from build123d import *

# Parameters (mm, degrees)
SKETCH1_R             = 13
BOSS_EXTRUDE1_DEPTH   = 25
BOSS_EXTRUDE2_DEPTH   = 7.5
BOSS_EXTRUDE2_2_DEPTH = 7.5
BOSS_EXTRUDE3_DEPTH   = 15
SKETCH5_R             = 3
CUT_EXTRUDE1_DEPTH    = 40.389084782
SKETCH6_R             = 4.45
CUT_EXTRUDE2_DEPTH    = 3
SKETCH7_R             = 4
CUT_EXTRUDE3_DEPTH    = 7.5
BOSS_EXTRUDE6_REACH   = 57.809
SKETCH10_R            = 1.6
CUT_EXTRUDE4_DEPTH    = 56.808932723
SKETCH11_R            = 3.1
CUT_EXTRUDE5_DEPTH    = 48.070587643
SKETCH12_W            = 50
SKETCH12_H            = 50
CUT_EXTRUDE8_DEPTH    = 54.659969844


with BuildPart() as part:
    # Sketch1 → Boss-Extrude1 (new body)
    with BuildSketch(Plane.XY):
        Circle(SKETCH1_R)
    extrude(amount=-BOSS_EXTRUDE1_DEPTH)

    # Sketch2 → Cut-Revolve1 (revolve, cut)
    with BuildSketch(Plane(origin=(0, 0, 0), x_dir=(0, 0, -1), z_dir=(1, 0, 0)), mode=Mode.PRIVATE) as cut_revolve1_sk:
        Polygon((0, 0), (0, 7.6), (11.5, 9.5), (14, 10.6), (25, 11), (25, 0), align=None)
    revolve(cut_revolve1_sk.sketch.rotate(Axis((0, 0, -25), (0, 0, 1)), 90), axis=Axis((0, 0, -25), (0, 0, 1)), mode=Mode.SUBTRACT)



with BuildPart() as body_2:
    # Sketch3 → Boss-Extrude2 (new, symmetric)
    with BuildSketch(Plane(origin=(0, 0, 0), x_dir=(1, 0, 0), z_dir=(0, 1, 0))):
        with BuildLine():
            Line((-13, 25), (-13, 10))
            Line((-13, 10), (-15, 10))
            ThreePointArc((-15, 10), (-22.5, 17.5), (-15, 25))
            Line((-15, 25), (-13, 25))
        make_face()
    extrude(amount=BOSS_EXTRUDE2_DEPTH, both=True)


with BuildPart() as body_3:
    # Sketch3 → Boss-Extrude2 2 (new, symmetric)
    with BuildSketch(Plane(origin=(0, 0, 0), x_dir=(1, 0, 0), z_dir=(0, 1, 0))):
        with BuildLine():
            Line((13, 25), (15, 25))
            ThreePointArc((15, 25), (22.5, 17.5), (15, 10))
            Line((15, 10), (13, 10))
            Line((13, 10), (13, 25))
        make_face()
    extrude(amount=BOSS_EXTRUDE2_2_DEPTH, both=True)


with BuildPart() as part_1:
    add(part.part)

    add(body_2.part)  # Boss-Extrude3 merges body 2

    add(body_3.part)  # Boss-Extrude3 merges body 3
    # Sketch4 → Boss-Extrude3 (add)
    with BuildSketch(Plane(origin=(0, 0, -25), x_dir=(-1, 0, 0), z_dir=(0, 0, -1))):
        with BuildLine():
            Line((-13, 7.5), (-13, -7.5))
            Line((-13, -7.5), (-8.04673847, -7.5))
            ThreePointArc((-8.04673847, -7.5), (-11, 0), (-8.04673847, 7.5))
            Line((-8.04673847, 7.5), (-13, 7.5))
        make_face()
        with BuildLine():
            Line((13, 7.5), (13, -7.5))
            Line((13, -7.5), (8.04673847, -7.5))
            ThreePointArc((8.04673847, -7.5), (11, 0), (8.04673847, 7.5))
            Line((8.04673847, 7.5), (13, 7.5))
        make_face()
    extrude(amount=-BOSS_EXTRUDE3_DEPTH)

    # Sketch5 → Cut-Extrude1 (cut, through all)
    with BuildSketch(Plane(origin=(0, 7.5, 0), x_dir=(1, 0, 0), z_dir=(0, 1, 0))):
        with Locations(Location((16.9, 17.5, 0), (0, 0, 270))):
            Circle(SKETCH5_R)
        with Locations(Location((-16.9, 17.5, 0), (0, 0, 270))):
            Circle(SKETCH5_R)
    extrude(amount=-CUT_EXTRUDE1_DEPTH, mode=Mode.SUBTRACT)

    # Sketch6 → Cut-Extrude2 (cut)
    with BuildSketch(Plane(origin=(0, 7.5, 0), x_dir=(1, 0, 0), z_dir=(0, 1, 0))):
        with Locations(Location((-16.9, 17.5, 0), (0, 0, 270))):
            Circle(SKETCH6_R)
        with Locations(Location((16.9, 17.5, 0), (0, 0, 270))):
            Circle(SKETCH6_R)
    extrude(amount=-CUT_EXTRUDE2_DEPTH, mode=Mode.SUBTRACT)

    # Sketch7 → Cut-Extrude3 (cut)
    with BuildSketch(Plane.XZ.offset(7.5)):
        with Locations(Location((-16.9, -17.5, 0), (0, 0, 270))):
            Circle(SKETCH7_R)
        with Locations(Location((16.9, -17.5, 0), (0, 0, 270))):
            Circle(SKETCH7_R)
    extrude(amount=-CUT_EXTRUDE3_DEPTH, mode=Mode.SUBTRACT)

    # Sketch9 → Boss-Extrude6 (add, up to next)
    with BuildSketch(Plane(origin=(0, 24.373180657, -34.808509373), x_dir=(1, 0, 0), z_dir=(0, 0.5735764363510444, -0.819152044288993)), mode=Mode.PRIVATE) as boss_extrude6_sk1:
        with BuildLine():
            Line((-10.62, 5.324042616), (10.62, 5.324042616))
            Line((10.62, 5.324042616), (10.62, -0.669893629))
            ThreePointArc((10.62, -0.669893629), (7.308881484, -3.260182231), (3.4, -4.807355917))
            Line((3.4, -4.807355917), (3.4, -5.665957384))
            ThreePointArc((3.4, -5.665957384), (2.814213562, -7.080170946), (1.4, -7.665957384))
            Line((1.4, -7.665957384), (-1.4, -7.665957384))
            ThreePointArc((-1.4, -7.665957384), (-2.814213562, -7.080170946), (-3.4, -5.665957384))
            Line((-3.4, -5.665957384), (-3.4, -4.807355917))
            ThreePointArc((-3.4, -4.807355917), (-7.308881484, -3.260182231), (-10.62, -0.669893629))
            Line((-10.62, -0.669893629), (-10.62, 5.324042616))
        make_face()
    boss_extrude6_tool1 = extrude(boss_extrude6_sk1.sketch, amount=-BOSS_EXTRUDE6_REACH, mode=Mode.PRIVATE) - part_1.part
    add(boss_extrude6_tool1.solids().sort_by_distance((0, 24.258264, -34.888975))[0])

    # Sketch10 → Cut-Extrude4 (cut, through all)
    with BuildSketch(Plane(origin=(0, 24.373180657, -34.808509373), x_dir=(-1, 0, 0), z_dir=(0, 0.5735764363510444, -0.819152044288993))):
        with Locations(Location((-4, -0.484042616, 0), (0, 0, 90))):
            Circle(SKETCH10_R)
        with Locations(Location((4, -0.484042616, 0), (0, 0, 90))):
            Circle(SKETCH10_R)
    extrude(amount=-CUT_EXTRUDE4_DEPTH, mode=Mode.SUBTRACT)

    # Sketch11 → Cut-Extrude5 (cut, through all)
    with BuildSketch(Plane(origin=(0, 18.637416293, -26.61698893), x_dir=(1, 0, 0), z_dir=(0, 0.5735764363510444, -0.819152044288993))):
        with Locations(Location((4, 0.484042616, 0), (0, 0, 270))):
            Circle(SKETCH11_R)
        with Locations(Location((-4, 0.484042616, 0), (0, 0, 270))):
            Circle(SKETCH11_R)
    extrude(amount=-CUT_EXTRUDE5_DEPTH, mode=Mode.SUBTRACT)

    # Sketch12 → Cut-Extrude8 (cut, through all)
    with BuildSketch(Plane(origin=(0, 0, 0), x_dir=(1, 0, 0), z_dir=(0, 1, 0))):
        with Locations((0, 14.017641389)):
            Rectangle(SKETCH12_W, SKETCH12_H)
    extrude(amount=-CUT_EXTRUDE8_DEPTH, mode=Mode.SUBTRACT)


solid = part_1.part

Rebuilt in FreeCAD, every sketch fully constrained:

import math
import FreeCAD as App
import Part
import Sketcher

V = App.Vector

doc = App.newDocument("Part")
body = doc.addObject("PartDesign::Body", "Body")

# Sketch on XY plane
sketch1 = body.newObject("Sketcher::SketchObject", "Sketch")
sketch1.AttachmentSupport = (doc.getObject("XY_Plane"), [""])
sketch1.MapMode = "FlatFace"
sketch1.addGeometry(Part.Circle(V(0, 0, 0), V(0, 0, 1), 13), False)
sketch1.addConstraint([
    Sketcher.Constraint("Coincident", 0, 3, -1, 1),
    Sketcher.Constraint("Diameter", 0, 26.0),
])
pad1 = body.newObject("PartDesign::Pad", "Pad")
pad1.Profile = sketch1
pad1.Length = 25
pad1.Reversed = True

# Sketch on YZ plane
sketch2 = body.newObject("Sketcher::SketchObject", "Sketch001")
sketch2.AttachmentSupport = (doc.getObject("YZ_Plane"), [""])
sketch2.MapMode = "FlatFace"
sketch2.addGeometry([
    Part.LineSegment(V(7.6, 0, 0), V(0, 0, 0)),  # 0
    Part.LineSegment(V(0, 0, 0), V(0, -25, 0)),  # 1
    Part.LineSegment(V(0, -25, 0), V(11, -25, 0)),  # 2
    Part.LineSegment(V(11, -25, 0), V(10.6, -14, 0)),  # 3
    Part.LineSegment(V(10.6, -14, 0), V(9.5, -11.5, 0)),  # 4
    Part.LineSegment(V(9.5, -11.5, 0), V(7.6, 0, 0)),  # 5
], False)
sketch2.addConstraint([
    Sketcher.Constraint("Coincident", 0, 2, 1, 1),
    Sketcher.Constraint("Coincident", 1, 2, 2, 1),
    Sketcher.Constraint("Coincident", 2, 2, 3, 1),
    Sketcher.Constraint("Coincident", 3, 2, 4, 1),
    Sketcher.Constraint("Coincident", 4, 2, 5, 1),
    Sketcher.Constraint("Coincident", 5, 2, 0, 1),
    Sketcher.Constraint("Horizontal", 0),
    Sketcher.Constraint("Vertical", 1),
    Sketcher.Constraint("Horizontal", 2),
    Sketcher.Constraint("Coincident", 0, 2, -1, 1),
    Sketcher.Constraint("DistanceX", 2, 1, 2, 2, 11.0),
    Sketcher.Constraint("DistanceY", 1, 2, 1, 1, 25.0),
    Sketcher.Constraint("DistanceX", 0, 2, 0, 1, 7.6),
    Sketcher.Constraint("DistanceY", 3, 2, -1, 1, 14.0),
    Sketcher.Constraint("DistanceX", 5, 2, 3, 2, 3.0),
    Sketcher.Constraint("DistanceX", -1, 1, 4, 2, 9.5),
    Sketcher.Constraint("DistanceY", 4, 2, -1, 1, 11.5),
])
groove = body.newObject("PartDesign::Groove", "Groove")
groove.Profile = sketch2
groove.ReferenceAxis = (sketch2, ["V_Axis"])
groove.Angle = 360
body2 = doc.addObject("PartDesign::Body", "Body001")

# Sketch on XZ plane
sketch3 = body2.newObject("Sketcher::SketchObject", "Sketch002")
sketch3.AttachmentSupport = (doc.getObject("XZ_Plane001"), [""])
sketch3.MapMode = "FlatFace"
sketch3.addGeometry([
    Part.LineSegment(V(-13, -10, 0), V(-13, -25, 0)),
    Part.LineSegment(V(-13, -25, 0), V(-15, -25, 0)),
    Part.ArcOfCircle(Part.Circle(V(-15, -17.5, 0), V(0, 0, 1), 7.5), math.radians(90), math.radians(270)),
    Part.LineSegment(V(-15, -10, 0), V(-13, -10, 0)),
], False)
sketch3.addConstraint([
    Sketcher.Constraint("Coincident", 0, 2, 1, 1),
    Sketcher.Constraint("Tangent", 1, 2, 2, 2),
    Sketcher.Constraint("Tangent", 2, 1, 3, 1),
    Sketcher.Constraint("Coincident", 3, 2, 0, 1),
    Sketcher.Constraint("Vertical", 0),
    Sketcher.Constraint("Horizontal", 1),
    Sketcher.Constraint("Horizontal", 3),
    Sketcher.Constraint("Radius", 2, 7.5),
    Sketcher.Constraint("DistanceX", 1, 2, 1, 1, 2.0),
    Sketcher.Constraint("DistanceX", 2, 3, -1, 1, 15.0),
    Sketcher.Constraint("DistanceY", 0, 2, -1, 1, 25.0),
])
pad2 = body2.newObject("PartDesign::Pad", "Pad001")
pad2.Profile = sketch3
pad2.Length = 15
pad2.Midplane = True
body3 = doc.addObject("PartDesign::Body", "Body002")

# Sketch on XZ plane
sketch4 = body3.newObject("Sketcher::SketchObject", "Sketch003")
sketch4.AttachmentSupport = (doc.getObject("XZ_Plane002"), [""])
sketch4.MapMode = "FlatFace"
sketch4.addGeometry([
    Part.LineSegment(V(15, -25, 0), V(13, -25, 0)),
    Part.LineSegment(V(13, -25, 0), V(13, -10, 0)),
    Part.LineSegment(V(13, -10, 0), V(15, -10, 0)),
    Part.ArcOfCircle(Part.Circle(V(15, -17.5, 0), V(0, 0, 1), 7.5), math.radians(-90), math.radians(90)),
], False)
sketch4.addConstraint([
    Sketcher.Constraint("Coincident", 0, 2, 1, 1),
    Sketcher.Constraint("Coincident", 1, 2, 2, 1),
    Sketcher.Constraint("Tangent", 2, 2, 3, 2),
    Sketcher.Constraint("Tangent", 3, 1, 0, 1),
    Sketcher.Constraint("Horizontal", 0),
    Sketcher.Constraint("Vertical", 1),
    Sketcher.Constraint("Horizontal", 2),
    Sketcher.Constraint("Radius", 3, 7.5),
    Sketcher.Constraint("DistanceX", 0, 2, 0, 1, 2.0),
    Sketcher.Constraint("DistanceX", -1, 1, 3, 3, 15.0),
    Sketcher.Constraint("DistanceY", 0, 2, -1, 1, 25.0),
])
pad3 = body3.newObject("PartDesign::Pad", "Pad002")
pad3.Profile = sketch4
pad3.Length = 15
pad3.Midplane = True
body.AllowCompound = True
doc.recompute()

boolean = body.newObject("PartDesign::Boolean", "Boolean")
boolean.Type = "Fuse"
boolean.addObjects([body2])
doc.recompute()

boolean2 = body.newObject("PartDesign::Boolean", "Boolean001")
boolean2.Type = "Fuse"
boolean2.addObjects([body3])

# Sketch on XY plane
sketch5 = body.newObject("Sketcher::SketchObject", "Sketch004")
sketch5.AttachmentSupport = (doc.getObject("XY_Plane"), [""])
sketch5.MapMode = "FlatFace"
sketch5.AttachmentOffset = App.Placement(V(0, 0, -25), App.Rotation())
sketch5.addGeometry([
    Part.LineSegment(V(13, 7.5, 0), V(13, -7.5, 0)),  # 0
    Part.LineSegment(V(13, -7.5, 0), V(8, -7.5, 0)),  # 1
    Part.ArcOfCircle(Part.Circle(V(0, 0, 0), V(0, 0, 1), 11), math.radians(-43), math.radians(43)),  # 2
    Part.LineSegment(V(8, 7.5, 0), V(13, 7.5, 0)),  # 3
    Part.LineSegment(V(-13, -7.5, 0), V(-13, 7.5, 0)),  # 4
    Part.LineSegment(V(-13, 7.5, 0), V(-8, 7.5, 0)),  # 5
    Part.ArcOfCircle(Part.Circle(V(0, 0, 0), V(0, 0, 1), 11), math.radians(137), math.radians(223)),  # 6
    Part.LineSegment(V(-8, -7.5, 0), V(-13, -7.5, 0)),  # 7
], False)
sketch5.addConstraint([
    Sketcher.Constraint("Coincident", 0, 2, 1, 1),
    Sketcher.Constraint("Coincident", 1, 2, 2, 1),
    Sketcher.Constraint("Coincident", 2, 2, 3, 1),
    Sketcher.Constraint("Coincident", 3, 2, 0, 1),
    Sketcher.Constraint("Coincident", 4, 2, 5, 1),
    Sketcher.Constraint("Coincident", 5, 2, 6, 1),
    Sketcher.Constraint("Coincident", 6, 2, 7, 1),
    Sketcher.Constraint("Coincident", 7, 2, 4, 1),
    Sketcher.Constraint("Vertical", 0),
    Sketcher.Constraint("Horizontal", 1),
    Sketcher.Constraint("Horizontal", 3),
    Sketcher.Constraint("Vertical", 4),
    Sketcher.Constraint("Horizontal", 5),
    Sketcher.Constraint("Horizontal", 7),
    Sketcher.Constraint("Coincident", 2, 3, -1, 1),
    Sketcher.Constraint("Coincident", 6, 3, -1, 1),
    Sketcher.Constraint("Equal", 2, 6),
    Sketcher.Constraint("Symmetric", 0, 2, 4, 2, -1, 1),
    Sketcher.Constraint("Horizontal", 3, 2, 4, 2),
    Sketcher.Constraint("Horizontal", 1, 2, 6, 2),
    Sketcher.Constraint("Radius", 2, 11.0),
    Sketcher.Constraint("DistanceY", 0, 2, 0, 1, 15.0),
    Sketcher.Constraint("DistanceX", -1, 1, 0, 2, 13.0),
])
pad4 = body.newObject("PartDesign::Pad", "Pad003")
pad4.Profile = sketch5
pad4.Length = 15

# Sketch on XZ plane
sketch6 = body.newObject("Sketcher::SketchObject", "Sketch005")
sketch6.AttachmentSupport = (doc.getObject("XZ_Plane"), [""])
sketch6.MapMode = "FlatFace"
sketch6.AttachmentOffset = App.Placement(V(0, 0, -7.5), App.Rotation())
sketch6.addGeometry([
    Part.Circle(V(16.9, -17.5, 0), V(0, 0, 1), 3),
    Part.Circle(V(-16.9, -17.5, 0), V(0, 0, 1), 3),
], False)
sketch6.addConstraint([
    Sketcher.Constraint("Equal", 0, 1),
    Sketcher.Constraint("Symmetric", 0, 3, 1, 3, -2),
    Sketcher.Constraint("Diameter", 0, 6.0),
    Sketcher.Constraint("DistanceX", -1, 1, 0, 3, 16.9),
    Sketcher.Constraint("DistanceY", 0, 3, -1, 1, 17.5),
])
pocket1 = body.newObject("PartDesign::Pocket", "Pocket")
pocket1.Profile = sketch6
pocket1.Type = "ThroughAll"
pocket1.Reversed = True

# Sketch on XZ plane
sketch7 = body.newObject("Sketcher::SketchObject", "Sketch006")
sketch7.AttachmentSupport = (doc.getObject("XZ_Plane"), [""])
sketch7.MapMode = "FlatFace"
sketch7.AttachmentOffset = App.Placement(V(0, 0, -7.5), App.Rotation())
sketch7.addGeometry([
    Part.Circle(V(-16.9, -17.5, 0), V(0, 0, 1), 4.5),
    Part.Circle(V(16.9, -17.5, 0), V(0, 0, 1), 4.5),
], False)
sketch7.addConstraint([
    Sketcher.Constraint("Equal", 0, 1),
    Sketcher.Constraint("Symmetric", 0, 3, 1, 3, -2),
    Sketcher.Constraint("Diameter", 0, 8.9),
    Sketcher.Constraint("DistanceX", 0, 3, -1, 1, 16.9),
    Sketcher.Constraint("DistanceY", 0, 3, -1, 1, 17.5),
])
pocket2 = body.newObject("PartDesign::Pocket", "Pocket001")
pocket2.Profile = sketch7
pocket2.Length = 3
pocket2.Reversed = True

# Sketch on XZ plane
sketch8 = body.newObject("Sketcher::SketchObject", "Sketch007")
sketch8.AttachmentSupport = (doc.getObject("XZ_Plane"), [""])
sketch8.MapMode = "FlatFace"
sketch8.AttachmentOffset = App.Placement(V(0, 0, 7.5), App.Rotation())
sketch8.addGeometry([
    Part.Circle(V(-16.9, -17.5, 0), V(0, 0, 1), 4),
    Part.Circle(V(16.9, -17.5, 0), V(0, 0, 1), 4),
], False)
sketch8.addConstraint([
    Sketcher.Constraint("Equal", 0, 1),
    Sketcher.Constraint("Symmetric", 0, 3, 1, 3, -2),
    Sketcher.Constraint("Diameter", 0, 8.0),
    Sketcher.Constraint("DistanceX", 0, 3, -1, 1, 16.9),
    Sketcher.Constraint("DistanceY", 0, 3, -1, 1, 17.5),
])
pocket3 = body.newObject("PartDesign::Pocket", "Pocket002")
pocket3.Profile = sketch8
pocket3.Length = 7.5

# Sketch on an angled plane
sketch9 = body.newObject("Sketcher::SketchObject", "Sketch008")
sketch9.Placement = App.Placement(V(0, 24.373181, -34.808509), App.Rotation(V(1, 0, 0), V(0, -0.819152044, -0.573576436), V(0, 0.573576436, -0.819152044), "ZXY"))
sketch9.addGeometry([
    Part.LineSegment(V(10.6, 5.3, 0), V(-10.6, 5.3, 0)),  # 0
    Part.LineSegment(V(-10.6, 5.3, 0), V(-10.6, -0.7, 0)),  # 1
    Part.ArcOfCircle(Part.Circle(V(0, 9.5, 0), V(0, 0, 1), 14.7), math.radians(-136), math.radians(-103)),  # 2
    Part.LineSegment(V(-3.4, -4.8, 0), V(-3.4, -5.7, 0)),  # 3
    Part.ArcOfCircle(Part.Circle(V(-1.4, -5.7, 0), V(0, 0, 1), 2), math.radians(-180), math.radians(-90)),  # 4
    Part.LineSegment(V(-1.4, -7.7, 0), V(1.4, -7.7, 0)),  # 5
    Part.ArcOfCircle(Part.Circle(V(1.4, -5.7, 0), V(0, 0, 1), 2), math.radians(-90), math.radians(0)),  # 6
    Part.LineSegment(V(3.4, -5.7, 0), V(3.4, -4.8, 0)),  # 7
    Part.ArcOfCircle(Part.Circle(V(0, 9.5, 0), V(0, 0, 1), 14.7), math.radians(-77), math.radians(-44)),  # 8
    Part.LineSegment(V(10.6, -0.7, 0), V(10.6, 5.3, 0)),  # 9
], False)
sketch9.addConstraint([
    Sketcher.Constraint("Coincident", 0, 2, 1, 1),
    Sketcher.Constraint("Coincident", 1, 2, 2, 1),
    Sketcher.Constraint("Coincident", 2, 2, 3, 1),
    Sketcher.Constraint("Tangent", 3, 2, 4, 1),
    Sketcher.Constraint("Tangent", 4, 2, 5, 1),
    Sketcher.Constraint("Tangent", 5, 2, 6, 1),
    Sketcher.Constraint("Tangent", 6, 2, 7, 1),
    Sketcher.Constraint("Coincident", 7, 2, 8, 1),
    Sketcher.Constraint("Coincident", 8, 2, 9, 1),
    Sketcher.Constraint("Coincident", 9, 2, 0, 1),
    Sketcher.Constraint("Horizontal", 0),
    Sketcher.Constraint("Vertical", 1),
    Sketcher.Constraint("Vertical", 3),
    Sketcher.Constraint("Horizontal", 5),
    Sketcher.Constraint("Vertical", 7),
    Sketcher.Constraint("Vertical", 9),
    Sketcher.Constraint("Coincident", 8, 3, 2, 3),
    Sketcher.Constraint("Equal", 4, 6),
    Sketcher.Constraint("Equal", 2, 8),
    Sketcher.Constraint("Symmetric", 2, 2, 7, 2, -2),
    Sketcher.Constraint("Horizontal", 1, 2, 8, 2),
    Sketcher.Constraint("Radius", 4, 2.0),
    Sketcher.Constraint("Radius", 2, 14.7),
    Sketcher.Constraint("DistanceX", 5, 1, 5, 2, 2.8),
    Sketcher.Constraint("DistanceX", 0, 2, 0, 1, 21.24),
    Sketcher.Constraint("DistanceY", 4, 3, 2, 3, 15.16),
    Sketcher.Constraint("DistanceY", 0, 2, 8, 3, 4.17),
    Sketcher.Constraint("DistanceY", -1, 1, 2, 3, 9.494043),
])
pad5 = body.newObject("PartDesign::Pad", "Pad004")
pad5.Profile = sketch9
pad5.Type = "UpToFirst"
pad5.Reversed = True

# Sketch on an angled plane
sketch10 = body.newObject("Sketcher::SketchObject", "Sketch009")
sketch10.Placement = App.Placement(V(0, 24.373181, -34.808509), App.Rotation(V(-1, 0, 0), V(0, 0.819152044, 0.573576436), V(0, 0.573576436, -0.819152044), "ZXY"))
sketch10.addGeometry([
    Part.Circle(V(-4, -0.5, 0), V(0, 0, 1), 1.6),
    Part.Circle(V(4, -0.5, 0), V(0, 0, 1), 1.6),
], False)
sketch10.addConstraint([
    Sketcher.Constraint("Equal", 0, 1),
    Sketcher.Constraint("Symmetric", 0, 3, 1, 3, -2),
    Sketcher.Constraint("Diameter", 0, 3.2),
    Sketcher.Constraint("DistanceX", 0, 3, -1, 1, 4.0),
    Sketcher.Constraint("DistanceY", 0, 3, -1, 1, 0.484043),
])
pocket4 = body.newObject("PartDesign::Pocket", "Pocket003")
pocket4.Profile = sketch10
pocket4.Type = "ThroughAll"

# Sketch on an angled plane
sketch11 = body.newObject("Sketcher::SketchObject", "Sketch010")
sketch11.Placement = App.Placement(V(0, 18.637416, -26.616989), App.Rotation(V(1, 0, 0), V(0, -0.819152044, -0.573576436), V(0, 0.573576436, -0.819152044), "ZXY"))
sketch11.addGeometry([
    Part.Circle(V(4, 0.5, 0), V(0, 0, 1), 3.1),
    Part.Circle(V(-4, 0.5, 0), V(0, 0, 1), 3.1),
], False)
sketch11.addConstraint([
    Sketcher.Constraint("Equal", 0, 1),
    Sketcher.Constraint("Symmetric", 0, 3, 1, 3, -2),
    Sketcher.Constraint("Diameter", 0, 6.2),
    Sketcher.Constraint("DistanceX", -1, 1, 0, 3, 4.0),
    Sketcher.Constraint("DistanceY", -1, 1, 0, 3, 0.484043),
])
pocket5 = body.newObject("PartDesign::Pocket", "Pocket004")
pocket5.Profile = sketch11
pocket5.Type = "ThroughAll"

# Sketch on XZ plane
sketch12 = body.newObject("Sketcher::SketchObject", "Sketch011")
sketch12.AttachmentSupport = (doc.getObject("XZ_Plane"), [""])
sketch12.MapMode = "FlatFace"
sketch12.addGeometry([
    Part.LineSegment(V(-25, -39, 0), V(-25, 11, 0)),
    Part.LineSegment(V(-25, 11, 0), V(25, 11, 0)),
    Part.LineSegment(V(25, 11, 0), V(25, -39, 0)),
    Part.LineSegment(V(25, -39, 0), V(-25, -39, 0)),
], False)
sketch12.addConstraint([
    Sketcher.Constraint("Coincident", 0, 2, 1, 1),
    Sketcher.Constraint("Coincident", 1, 2, 2, 1),
    Sketcher.Constraint("Coincident", 2, 2, 3, 1),
    Sketcher.Constraint("Coincident", 3, 2, 0, 1),
    Sketcher.Constraint("Vertical", 0),
    Sketcher.Constraint("Horizontal", 1),
    Sketcher.Constraint("Vertical", 2),
    Sketcher.Constraint("Horizontal", 3),
    Sketcher.Constraint("Equal", 3, 0),
    Sketcher.Constraint("DistanceX", 1, 1, 1, 2, 50.0),
    Sketcher.Constraint("DistanceX", 0, 2, -1, 1, 25.0),
    Sketcher.Constraint("DistanceY", -1, 1, 0, 2, 10.982359),
])
pocket6 = body.newObject("PartDesign::Pocket", "Pocket005")
pocket6.Profile = sketch12
pocket6.Type = "ThroughAll"
pocket6.Reversed = True

doc.recompute()
